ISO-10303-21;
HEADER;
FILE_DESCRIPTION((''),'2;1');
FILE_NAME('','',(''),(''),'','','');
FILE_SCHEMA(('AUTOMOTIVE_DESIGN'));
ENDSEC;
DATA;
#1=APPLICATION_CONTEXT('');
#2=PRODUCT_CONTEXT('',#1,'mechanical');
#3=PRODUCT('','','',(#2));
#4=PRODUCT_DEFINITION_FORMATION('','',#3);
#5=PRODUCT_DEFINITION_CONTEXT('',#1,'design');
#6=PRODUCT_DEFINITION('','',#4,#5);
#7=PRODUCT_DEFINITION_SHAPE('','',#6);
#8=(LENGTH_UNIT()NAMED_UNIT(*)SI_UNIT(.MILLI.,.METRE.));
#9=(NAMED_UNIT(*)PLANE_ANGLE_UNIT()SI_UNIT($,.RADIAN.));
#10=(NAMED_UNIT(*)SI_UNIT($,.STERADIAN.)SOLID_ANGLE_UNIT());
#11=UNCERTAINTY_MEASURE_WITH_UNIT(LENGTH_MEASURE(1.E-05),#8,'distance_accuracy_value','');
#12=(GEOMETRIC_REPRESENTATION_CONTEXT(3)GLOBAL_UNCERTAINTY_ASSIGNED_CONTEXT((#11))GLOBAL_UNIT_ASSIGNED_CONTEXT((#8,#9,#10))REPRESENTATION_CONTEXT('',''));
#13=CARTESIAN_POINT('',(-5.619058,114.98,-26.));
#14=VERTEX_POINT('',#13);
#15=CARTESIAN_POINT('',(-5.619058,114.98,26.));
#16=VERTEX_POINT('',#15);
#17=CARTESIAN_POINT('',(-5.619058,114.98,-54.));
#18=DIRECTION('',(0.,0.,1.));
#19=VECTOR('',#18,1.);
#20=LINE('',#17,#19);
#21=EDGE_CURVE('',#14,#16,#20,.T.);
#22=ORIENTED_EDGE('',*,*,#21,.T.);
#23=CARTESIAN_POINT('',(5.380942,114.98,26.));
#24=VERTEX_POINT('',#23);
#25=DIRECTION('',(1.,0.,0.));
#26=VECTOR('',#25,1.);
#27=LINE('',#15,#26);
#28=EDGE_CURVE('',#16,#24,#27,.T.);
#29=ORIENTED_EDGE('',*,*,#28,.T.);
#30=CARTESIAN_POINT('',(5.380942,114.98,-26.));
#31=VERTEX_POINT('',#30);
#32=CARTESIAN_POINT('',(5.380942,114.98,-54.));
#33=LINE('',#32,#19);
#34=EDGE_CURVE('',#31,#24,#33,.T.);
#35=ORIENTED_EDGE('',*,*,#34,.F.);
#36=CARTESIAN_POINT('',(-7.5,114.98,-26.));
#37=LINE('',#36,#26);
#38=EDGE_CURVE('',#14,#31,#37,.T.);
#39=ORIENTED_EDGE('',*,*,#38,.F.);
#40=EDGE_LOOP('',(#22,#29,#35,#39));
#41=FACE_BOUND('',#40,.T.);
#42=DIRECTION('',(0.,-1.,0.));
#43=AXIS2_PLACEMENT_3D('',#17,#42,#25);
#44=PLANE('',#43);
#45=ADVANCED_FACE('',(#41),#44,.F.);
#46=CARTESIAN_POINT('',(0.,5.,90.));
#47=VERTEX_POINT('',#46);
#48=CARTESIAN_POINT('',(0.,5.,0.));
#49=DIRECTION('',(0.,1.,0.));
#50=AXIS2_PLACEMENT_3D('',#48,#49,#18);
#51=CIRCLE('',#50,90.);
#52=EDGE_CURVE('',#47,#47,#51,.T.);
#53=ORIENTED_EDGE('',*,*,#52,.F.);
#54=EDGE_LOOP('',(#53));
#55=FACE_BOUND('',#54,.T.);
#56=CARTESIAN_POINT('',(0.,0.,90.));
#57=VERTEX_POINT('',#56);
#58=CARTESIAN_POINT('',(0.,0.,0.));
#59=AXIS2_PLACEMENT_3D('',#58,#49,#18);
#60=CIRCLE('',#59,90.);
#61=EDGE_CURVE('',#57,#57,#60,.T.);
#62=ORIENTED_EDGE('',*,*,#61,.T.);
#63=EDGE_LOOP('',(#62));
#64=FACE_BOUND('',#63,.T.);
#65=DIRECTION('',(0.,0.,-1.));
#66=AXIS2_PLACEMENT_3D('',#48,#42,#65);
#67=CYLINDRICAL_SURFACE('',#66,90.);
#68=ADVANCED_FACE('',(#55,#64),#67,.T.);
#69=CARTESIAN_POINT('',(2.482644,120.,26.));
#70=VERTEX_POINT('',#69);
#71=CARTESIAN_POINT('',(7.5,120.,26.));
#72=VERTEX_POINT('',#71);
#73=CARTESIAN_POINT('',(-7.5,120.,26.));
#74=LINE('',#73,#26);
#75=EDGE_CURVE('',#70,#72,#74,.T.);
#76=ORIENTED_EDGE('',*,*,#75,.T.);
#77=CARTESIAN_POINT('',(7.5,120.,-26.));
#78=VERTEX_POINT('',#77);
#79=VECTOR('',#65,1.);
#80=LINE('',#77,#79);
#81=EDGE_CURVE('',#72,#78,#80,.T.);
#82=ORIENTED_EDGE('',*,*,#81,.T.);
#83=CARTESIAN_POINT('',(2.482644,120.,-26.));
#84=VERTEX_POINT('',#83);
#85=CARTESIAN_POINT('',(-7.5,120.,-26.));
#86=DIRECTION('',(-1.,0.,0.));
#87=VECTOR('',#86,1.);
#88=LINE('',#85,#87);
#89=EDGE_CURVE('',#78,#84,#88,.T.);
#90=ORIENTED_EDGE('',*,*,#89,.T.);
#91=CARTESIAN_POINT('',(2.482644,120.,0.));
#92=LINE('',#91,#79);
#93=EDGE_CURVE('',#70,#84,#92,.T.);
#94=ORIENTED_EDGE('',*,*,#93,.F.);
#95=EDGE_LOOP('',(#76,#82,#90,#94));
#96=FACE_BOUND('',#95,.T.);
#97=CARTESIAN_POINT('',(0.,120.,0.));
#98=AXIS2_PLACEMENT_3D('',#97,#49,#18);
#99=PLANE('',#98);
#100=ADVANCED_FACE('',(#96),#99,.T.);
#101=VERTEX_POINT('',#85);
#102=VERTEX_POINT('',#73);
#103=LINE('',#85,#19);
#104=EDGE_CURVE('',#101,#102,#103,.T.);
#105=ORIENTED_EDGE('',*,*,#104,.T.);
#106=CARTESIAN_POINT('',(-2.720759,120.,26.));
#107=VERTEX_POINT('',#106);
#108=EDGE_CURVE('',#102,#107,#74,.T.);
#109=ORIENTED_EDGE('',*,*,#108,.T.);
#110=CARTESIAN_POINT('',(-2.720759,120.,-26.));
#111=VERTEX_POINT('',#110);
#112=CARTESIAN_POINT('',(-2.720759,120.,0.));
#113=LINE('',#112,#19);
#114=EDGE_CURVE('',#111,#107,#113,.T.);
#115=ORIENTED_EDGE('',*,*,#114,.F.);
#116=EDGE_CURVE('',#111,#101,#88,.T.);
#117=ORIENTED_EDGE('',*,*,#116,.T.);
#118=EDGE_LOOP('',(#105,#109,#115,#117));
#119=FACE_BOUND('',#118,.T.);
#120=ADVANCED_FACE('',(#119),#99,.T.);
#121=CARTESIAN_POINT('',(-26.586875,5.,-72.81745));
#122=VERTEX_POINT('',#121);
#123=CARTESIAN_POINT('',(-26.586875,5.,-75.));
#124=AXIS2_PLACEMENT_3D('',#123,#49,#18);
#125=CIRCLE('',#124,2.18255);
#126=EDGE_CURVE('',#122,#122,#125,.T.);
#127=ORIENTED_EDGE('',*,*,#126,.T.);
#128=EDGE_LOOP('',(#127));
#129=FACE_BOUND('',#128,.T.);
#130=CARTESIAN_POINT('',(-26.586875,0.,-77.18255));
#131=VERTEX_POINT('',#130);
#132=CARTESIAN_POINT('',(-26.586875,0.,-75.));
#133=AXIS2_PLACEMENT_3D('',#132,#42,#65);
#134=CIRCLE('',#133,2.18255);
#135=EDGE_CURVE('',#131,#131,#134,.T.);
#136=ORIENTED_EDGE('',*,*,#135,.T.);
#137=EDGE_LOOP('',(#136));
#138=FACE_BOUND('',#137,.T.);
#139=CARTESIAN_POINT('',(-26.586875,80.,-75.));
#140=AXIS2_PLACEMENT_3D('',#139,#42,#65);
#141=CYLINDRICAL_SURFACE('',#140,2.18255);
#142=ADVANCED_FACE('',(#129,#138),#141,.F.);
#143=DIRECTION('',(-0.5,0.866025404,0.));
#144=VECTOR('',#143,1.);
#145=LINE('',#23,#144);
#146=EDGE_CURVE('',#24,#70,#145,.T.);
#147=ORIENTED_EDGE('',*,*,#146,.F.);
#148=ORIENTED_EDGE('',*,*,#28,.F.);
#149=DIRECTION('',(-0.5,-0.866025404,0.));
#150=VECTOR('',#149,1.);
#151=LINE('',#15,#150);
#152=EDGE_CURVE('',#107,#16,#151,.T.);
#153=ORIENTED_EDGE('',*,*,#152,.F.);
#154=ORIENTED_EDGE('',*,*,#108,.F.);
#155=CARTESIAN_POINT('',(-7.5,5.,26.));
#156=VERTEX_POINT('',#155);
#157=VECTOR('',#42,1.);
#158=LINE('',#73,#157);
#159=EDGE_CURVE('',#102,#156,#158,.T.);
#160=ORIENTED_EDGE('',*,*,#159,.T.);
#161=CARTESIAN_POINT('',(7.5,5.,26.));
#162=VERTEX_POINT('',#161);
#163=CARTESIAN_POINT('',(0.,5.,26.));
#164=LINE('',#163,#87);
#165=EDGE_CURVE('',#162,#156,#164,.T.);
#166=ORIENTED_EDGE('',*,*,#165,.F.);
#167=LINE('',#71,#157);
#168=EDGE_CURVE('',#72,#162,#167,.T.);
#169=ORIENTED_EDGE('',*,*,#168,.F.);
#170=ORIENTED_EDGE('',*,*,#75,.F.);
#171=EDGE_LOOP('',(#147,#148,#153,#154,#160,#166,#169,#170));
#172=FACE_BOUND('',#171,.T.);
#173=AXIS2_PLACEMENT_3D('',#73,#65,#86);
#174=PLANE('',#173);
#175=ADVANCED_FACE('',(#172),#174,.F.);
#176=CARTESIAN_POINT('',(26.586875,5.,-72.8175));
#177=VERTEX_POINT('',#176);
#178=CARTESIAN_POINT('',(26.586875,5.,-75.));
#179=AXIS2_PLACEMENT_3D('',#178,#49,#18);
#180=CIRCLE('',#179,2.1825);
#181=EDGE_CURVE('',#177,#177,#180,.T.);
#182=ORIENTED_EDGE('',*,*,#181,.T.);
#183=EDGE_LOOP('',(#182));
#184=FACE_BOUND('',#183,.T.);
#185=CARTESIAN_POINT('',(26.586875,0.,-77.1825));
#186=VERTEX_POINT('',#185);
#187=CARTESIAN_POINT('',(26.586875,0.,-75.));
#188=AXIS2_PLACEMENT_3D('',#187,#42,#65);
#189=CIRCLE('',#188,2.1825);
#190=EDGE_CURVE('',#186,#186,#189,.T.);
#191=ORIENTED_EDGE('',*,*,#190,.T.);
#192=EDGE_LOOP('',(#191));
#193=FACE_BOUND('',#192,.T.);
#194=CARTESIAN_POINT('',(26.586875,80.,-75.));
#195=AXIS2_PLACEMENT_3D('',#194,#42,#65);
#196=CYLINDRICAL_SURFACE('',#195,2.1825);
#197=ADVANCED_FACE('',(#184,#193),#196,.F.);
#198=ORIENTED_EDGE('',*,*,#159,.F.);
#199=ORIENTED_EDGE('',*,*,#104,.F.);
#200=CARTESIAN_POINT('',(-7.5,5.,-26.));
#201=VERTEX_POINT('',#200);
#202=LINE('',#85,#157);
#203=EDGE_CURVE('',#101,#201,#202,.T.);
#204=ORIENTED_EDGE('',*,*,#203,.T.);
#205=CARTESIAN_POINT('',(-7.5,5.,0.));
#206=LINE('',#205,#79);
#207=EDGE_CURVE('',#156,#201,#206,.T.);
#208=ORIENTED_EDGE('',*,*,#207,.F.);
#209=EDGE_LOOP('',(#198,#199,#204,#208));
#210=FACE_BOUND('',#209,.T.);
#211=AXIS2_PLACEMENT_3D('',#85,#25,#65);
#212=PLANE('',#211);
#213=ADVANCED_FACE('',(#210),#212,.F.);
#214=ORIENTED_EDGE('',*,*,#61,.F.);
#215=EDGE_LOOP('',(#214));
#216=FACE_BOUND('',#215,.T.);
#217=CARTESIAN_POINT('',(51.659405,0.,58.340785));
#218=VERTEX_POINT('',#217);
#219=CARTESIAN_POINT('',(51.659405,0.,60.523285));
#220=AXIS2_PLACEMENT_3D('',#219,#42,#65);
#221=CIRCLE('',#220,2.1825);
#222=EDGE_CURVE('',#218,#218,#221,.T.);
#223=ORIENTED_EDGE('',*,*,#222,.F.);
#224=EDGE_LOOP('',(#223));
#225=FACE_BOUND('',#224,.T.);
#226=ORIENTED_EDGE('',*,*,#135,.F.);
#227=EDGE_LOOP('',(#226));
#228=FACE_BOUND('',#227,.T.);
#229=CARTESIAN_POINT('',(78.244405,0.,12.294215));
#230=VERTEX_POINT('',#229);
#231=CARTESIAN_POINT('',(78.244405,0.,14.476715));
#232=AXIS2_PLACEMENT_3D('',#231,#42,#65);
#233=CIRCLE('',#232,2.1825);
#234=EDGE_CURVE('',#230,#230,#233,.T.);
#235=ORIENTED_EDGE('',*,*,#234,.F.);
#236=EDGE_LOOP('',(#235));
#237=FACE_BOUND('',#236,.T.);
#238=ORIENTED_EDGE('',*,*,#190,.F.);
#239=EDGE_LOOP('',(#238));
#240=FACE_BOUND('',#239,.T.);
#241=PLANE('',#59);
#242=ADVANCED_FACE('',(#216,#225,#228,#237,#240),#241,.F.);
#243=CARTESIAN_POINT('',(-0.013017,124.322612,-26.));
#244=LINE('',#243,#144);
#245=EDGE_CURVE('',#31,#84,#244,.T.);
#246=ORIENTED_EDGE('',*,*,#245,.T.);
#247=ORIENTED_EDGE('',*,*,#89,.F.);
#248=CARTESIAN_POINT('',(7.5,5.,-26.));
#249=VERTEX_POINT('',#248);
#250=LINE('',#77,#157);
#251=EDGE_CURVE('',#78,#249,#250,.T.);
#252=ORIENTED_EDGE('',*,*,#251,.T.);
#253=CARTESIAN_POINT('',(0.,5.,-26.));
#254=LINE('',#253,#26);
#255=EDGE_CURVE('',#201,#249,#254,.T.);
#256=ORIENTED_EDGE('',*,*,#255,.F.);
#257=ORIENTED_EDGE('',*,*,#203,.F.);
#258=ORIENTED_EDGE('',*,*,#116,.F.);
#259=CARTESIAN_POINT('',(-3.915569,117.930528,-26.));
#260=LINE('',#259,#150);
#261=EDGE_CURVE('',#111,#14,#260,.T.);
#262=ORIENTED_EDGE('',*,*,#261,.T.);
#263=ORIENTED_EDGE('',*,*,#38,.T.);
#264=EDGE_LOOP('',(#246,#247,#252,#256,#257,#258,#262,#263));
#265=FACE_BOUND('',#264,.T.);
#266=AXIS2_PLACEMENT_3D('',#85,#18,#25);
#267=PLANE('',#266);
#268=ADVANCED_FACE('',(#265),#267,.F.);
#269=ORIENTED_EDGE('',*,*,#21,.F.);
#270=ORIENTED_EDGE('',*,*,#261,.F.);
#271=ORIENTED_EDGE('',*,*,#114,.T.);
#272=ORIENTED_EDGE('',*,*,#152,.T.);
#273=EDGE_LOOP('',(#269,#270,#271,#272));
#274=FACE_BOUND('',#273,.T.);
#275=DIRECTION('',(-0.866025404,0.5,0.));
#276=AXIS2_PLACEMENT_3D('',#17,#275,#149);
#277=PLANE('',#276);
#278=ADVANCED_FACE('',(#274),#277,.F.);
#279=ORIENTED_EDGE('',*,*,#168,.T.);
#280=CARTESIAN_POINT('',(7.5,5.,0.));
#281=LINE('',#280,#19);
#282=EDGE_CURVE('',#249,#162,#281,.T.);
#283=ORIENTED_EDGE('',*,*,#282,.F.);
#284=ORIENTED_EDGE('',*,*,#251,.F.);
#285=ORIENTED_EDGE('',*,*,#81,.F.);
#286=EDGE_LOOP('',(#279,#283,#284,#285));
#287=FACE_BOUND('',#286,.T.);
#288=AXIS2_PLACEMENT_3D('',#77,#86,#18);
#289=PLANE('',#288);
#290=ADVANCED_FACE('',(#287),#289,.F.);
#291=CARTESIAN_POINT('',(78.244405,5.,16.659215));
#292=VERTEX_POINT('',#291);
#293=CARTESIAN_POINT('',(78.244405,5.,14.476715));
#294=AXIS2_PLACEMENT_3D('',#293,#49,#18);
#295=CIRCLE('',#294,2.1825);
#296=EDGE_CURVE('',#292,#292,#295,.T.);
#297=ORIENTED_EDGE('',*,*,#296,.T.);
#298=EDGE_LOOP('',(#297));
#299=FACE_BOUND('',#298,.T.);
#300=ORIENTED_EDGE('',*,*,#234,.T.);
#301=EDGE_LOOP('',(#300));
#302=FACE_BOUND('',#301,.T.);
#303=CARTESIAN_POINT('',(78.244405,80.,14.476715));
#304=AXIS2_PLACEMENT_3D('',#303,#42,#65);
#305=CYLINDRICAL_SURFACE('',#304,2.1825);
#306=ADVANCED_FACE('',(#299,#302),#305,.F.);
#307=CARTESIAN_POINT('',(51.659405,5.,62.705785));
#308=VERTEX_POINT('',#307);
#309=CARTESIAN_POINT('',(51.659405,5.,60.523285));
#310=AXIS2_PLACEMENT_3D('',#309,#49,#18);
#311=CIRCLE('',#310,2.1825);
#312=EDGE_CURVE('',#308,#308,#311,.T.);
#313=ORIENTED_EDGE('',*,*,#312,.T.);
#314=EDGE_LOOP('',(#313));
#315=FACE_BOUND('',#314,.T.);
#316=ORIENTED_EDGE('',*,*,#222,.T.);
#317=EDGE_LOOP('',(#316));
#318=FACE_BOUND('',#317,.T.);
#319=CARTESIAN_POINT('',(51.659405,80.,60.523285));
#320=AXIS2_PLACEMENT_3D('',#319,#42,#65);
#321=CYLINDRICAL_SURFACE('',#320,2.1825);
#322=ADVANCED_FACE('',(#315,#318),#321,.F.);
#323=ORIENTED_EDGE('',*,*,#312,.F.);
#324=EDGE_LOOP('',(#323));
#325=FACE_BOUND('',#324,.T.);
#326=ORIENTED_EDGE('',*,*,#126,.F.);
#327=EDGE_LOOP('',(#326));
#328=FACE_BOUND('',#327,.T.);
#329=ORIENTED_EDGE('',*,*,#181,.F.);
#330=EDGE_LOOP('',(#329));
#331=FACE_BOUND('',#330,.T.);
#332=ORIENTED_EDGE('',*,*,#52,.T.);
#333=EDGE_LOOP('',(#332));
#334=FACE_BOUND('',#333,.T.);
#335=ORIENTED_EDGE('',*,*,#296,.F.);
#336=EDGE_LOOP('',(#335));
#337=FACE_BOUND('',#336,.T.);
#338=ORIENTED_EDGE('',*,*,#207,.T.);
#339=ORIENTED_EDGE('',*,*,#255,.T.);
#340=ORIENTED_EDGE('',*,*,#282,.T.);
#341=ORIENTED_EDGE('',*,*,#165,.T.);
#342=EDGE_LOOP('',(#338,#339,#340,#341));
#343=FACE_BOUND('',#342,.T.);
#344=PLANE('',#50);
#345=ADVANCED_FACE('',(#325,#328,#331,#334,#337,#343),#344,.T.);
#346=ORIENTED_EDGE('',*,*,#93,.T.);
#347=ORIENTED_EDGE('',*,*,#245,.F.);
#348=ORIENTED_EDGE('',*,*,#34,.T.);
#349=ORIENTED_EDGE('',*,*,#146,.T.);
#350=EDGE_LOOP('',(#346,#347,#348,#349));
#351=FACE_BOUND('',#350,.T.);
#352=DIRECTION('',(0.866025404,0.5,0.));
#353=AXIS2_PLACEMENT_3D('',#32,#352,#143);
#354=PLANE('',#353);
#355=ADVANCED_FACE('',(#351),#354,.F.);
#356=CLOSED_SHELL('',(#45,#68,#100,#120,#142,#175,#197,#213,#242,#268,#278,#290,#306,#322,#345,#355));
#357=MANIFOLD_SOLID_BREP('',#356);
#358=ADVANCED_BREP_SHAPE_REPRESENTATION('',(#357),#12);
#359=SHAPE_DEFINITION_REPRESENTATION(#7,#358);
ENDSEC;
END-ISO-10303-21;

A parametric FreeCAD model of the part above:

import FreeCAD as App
import Part
import Sketcher

V = App.Vector
Q = App.Units.Quantity

doc = App.newDocument("Part")
body = doc.addObject("PartDesign::Body", "Body")

sketch1 = body.newObject("Sketcher::SketchObject", "Sketch")
sketch1.AttachmentSupport = (doc.getObject("XZ_Plane"), [""])
sketch1.MapMode = "FlatFace"
sketch1.addGeometry(Part.Circle(V(0, 0, 0), V(0, 0, 1), 90), False)
sketch1.addConstraint([
    Sketcher.Constraint("Coincident", 0, 3, -1, 1),
    Sketcher.Constraint("Diameter", 0, Q("180 mm")),
])
pad1 = body.newObject("PartDesign::Pad", "Pad")
pad1.Profile = sketch1
pad1.Length = 5
pad1.Reversed = True

sketch2 = body.newObject("Sketcher::SketchObject", "Sketch001")
sketch2.AttachmentSupport = (doc.getObject("XZ_Plane"), [""])
sketch2.MapMode = "FlatFace"
sketch2.addGeometry([
    Part.LineSegment(V(-8, -26, 0), V(-8, 26, 0)),
    Part.LineSegment(V(-8, 26, 0), V(8, 26, 0)),
    Part.LineSegment(V(8, 26, 0), V(8, -26, 0)),
    Part.LineSegment(V(8, -26, 0), V(-8, -26, 0)),
], False)
sketch2.addConstraint([
    Sketcher.Constraint("Coincident", 0, 2, 1, 1),
    Sketcher.Constraint("Coincident", 1, 2, 2, 1),
    Sketcher.Constraint("Coincident", 2, 2, 3, 1),
    Sketcher.Constraint("Coincident", 3, 2, 0, 1),
    Sketcher.Constraint("Vertical", 0),
    Sketcher.Constraint("Horizontal", 1),
    Sketcher.Constraint("Vertical", 2),
    Sketcher.Constraint("Horizontal", 3),
    Sketcher.Constraint("Symmetric", 0, 2, 2, 2, -1, 1),
    Sketcher.Constraint("DistanceX", 1, 1, 1, 2, Q("15 mm")),
    Sketcher.Constraint("DistanceY", 0, 1, 0, 2, Q("52 mm")),
])
pad2 = body.newObject("PartDesign::Pad", "Pad001")
pad2.Profile = sketch2
pad2.Length = 120
pad2.Reversed = True

sketch3 = body.newObject("Sketcher::SketchObject", "Sketch002")
sketch3.AttachmentSupport = (doc.getObject("XY_Plane"), [""])
sketch3.MapMode = "FlatFace"
sketch3.AttachmentOffset = App.Placement(V(0, 0, 26), App.Rotation())
sketch3.addGeometry([
    Part.LineSegment(V(-3, 120, 0), V(-6, 115, 0)),
    Part.LineSegment(V(-6, 115, 0), V(5, 115, 0)),
    Part.LineSegment(V(5, 115, 0), V(2, 120, 0)),
    Part.LineSegment(V(2, 120, 0), V(-3, 120, 0)),
], False)
sketch3.addConstraint([
    Sketcher.Constraint("Coincident", 0, 2, 1, 1),
    Sketcher.Constraint("Coincident", 1, 2, 2, 1),
    Sketcher.Constraint("Coincident", 2, 2, 3, 1),
    Sketcher.Constraint("Coincident", 3, 2, 0, 1),
    Sketcher.Constraint("Horizontal", 1),
    Sketcher.Constraint("Horizontal", 3),
    Sketcher.Constraint("Equal", 0, 2),
    Sketcher.Constraint("DistanceX", 1, 1, 1, 2, Q("11 mm")),
    Sketcher.Constraint("Angle", 0, Q("-120 deg")),
    Sketcher.Constraint("DistanceY", -1, 1, 2, 2, Q("120 mm")),
    Sketcher.Constraint("DistanceY", -1, 1, 0, 2, Q("114.98 mm")),
    Sketcher.Constraint("DistanceX", 3, 2, -1, 1, Q("2.720759 mm")),
])
pocket1 = body.newObject("PartDesign::Pocket", "Pocket")
pocket1.Profile = sketch3
pocket1.Length = 80

sketch4 = body.newObject("Sketcher::SketchObject", "Sketch003")
sketch4.AttachmentSupport = (doc.getObject("XZ_Plane"), [""])
sketch4.MapMode = "FlatFace"
sketch4.addGeometry([
    Part.Circle(V(26.6, -75, 0), V(0, 0, 1), 2.2),
    Part.Circle(V(-26.6, -75, 0), V(0, 0, 1), 2.2),
    Part.Circle(V(51.7, 60.5, 0), V(0, 0, 1), 2.2),
    Part.Circle(V(78.2, 14.5, 0), V(0, 0, 1), 2.2),
], False)
sketch4.addConstraint([
    Sketcher.Constraint("Equal", 0, 2),
    Sketcher.Constraint("Equal", 2, 3),
    Sketcher.Constraint("Symmetric", 0, 3, 1, 3, -2),
    Sketcher.Constraint("Diameter", 0, Q("4.365 mm")),
    Sketcher.Constraint("DistanceY", 0, 3, -1, 1, Q("75 mm")),
    Sketcher.Constraint("Diameter", 1, Q("4.3651 mm")),
    Sketcher.Constraint("DistanceX", 2, 3, 3, 3, Q("26.585 mm")),
    Sketcher.Constraint("DistanceX", 1, 3, 0, 3, Q("53.17375 mm")),
    Sketcher.Constraint("DistanceX", 0, 3, 2, 3, Q("25.07253 mm")),
    Sketcher.Constraint("DistanceY", 3, 3, 2, 3, Q("46.046571 mm")),
    Sketcher.Constraint("DistanceY", -1, 1, 2, 3, Q("60.523285 mm")),
])
pocket2 = body.newObject("PartDesign::Pocket", "Pocket001")
pocket2.Profile = sketch4
pocket2.Length = 80

doc.recompute()
